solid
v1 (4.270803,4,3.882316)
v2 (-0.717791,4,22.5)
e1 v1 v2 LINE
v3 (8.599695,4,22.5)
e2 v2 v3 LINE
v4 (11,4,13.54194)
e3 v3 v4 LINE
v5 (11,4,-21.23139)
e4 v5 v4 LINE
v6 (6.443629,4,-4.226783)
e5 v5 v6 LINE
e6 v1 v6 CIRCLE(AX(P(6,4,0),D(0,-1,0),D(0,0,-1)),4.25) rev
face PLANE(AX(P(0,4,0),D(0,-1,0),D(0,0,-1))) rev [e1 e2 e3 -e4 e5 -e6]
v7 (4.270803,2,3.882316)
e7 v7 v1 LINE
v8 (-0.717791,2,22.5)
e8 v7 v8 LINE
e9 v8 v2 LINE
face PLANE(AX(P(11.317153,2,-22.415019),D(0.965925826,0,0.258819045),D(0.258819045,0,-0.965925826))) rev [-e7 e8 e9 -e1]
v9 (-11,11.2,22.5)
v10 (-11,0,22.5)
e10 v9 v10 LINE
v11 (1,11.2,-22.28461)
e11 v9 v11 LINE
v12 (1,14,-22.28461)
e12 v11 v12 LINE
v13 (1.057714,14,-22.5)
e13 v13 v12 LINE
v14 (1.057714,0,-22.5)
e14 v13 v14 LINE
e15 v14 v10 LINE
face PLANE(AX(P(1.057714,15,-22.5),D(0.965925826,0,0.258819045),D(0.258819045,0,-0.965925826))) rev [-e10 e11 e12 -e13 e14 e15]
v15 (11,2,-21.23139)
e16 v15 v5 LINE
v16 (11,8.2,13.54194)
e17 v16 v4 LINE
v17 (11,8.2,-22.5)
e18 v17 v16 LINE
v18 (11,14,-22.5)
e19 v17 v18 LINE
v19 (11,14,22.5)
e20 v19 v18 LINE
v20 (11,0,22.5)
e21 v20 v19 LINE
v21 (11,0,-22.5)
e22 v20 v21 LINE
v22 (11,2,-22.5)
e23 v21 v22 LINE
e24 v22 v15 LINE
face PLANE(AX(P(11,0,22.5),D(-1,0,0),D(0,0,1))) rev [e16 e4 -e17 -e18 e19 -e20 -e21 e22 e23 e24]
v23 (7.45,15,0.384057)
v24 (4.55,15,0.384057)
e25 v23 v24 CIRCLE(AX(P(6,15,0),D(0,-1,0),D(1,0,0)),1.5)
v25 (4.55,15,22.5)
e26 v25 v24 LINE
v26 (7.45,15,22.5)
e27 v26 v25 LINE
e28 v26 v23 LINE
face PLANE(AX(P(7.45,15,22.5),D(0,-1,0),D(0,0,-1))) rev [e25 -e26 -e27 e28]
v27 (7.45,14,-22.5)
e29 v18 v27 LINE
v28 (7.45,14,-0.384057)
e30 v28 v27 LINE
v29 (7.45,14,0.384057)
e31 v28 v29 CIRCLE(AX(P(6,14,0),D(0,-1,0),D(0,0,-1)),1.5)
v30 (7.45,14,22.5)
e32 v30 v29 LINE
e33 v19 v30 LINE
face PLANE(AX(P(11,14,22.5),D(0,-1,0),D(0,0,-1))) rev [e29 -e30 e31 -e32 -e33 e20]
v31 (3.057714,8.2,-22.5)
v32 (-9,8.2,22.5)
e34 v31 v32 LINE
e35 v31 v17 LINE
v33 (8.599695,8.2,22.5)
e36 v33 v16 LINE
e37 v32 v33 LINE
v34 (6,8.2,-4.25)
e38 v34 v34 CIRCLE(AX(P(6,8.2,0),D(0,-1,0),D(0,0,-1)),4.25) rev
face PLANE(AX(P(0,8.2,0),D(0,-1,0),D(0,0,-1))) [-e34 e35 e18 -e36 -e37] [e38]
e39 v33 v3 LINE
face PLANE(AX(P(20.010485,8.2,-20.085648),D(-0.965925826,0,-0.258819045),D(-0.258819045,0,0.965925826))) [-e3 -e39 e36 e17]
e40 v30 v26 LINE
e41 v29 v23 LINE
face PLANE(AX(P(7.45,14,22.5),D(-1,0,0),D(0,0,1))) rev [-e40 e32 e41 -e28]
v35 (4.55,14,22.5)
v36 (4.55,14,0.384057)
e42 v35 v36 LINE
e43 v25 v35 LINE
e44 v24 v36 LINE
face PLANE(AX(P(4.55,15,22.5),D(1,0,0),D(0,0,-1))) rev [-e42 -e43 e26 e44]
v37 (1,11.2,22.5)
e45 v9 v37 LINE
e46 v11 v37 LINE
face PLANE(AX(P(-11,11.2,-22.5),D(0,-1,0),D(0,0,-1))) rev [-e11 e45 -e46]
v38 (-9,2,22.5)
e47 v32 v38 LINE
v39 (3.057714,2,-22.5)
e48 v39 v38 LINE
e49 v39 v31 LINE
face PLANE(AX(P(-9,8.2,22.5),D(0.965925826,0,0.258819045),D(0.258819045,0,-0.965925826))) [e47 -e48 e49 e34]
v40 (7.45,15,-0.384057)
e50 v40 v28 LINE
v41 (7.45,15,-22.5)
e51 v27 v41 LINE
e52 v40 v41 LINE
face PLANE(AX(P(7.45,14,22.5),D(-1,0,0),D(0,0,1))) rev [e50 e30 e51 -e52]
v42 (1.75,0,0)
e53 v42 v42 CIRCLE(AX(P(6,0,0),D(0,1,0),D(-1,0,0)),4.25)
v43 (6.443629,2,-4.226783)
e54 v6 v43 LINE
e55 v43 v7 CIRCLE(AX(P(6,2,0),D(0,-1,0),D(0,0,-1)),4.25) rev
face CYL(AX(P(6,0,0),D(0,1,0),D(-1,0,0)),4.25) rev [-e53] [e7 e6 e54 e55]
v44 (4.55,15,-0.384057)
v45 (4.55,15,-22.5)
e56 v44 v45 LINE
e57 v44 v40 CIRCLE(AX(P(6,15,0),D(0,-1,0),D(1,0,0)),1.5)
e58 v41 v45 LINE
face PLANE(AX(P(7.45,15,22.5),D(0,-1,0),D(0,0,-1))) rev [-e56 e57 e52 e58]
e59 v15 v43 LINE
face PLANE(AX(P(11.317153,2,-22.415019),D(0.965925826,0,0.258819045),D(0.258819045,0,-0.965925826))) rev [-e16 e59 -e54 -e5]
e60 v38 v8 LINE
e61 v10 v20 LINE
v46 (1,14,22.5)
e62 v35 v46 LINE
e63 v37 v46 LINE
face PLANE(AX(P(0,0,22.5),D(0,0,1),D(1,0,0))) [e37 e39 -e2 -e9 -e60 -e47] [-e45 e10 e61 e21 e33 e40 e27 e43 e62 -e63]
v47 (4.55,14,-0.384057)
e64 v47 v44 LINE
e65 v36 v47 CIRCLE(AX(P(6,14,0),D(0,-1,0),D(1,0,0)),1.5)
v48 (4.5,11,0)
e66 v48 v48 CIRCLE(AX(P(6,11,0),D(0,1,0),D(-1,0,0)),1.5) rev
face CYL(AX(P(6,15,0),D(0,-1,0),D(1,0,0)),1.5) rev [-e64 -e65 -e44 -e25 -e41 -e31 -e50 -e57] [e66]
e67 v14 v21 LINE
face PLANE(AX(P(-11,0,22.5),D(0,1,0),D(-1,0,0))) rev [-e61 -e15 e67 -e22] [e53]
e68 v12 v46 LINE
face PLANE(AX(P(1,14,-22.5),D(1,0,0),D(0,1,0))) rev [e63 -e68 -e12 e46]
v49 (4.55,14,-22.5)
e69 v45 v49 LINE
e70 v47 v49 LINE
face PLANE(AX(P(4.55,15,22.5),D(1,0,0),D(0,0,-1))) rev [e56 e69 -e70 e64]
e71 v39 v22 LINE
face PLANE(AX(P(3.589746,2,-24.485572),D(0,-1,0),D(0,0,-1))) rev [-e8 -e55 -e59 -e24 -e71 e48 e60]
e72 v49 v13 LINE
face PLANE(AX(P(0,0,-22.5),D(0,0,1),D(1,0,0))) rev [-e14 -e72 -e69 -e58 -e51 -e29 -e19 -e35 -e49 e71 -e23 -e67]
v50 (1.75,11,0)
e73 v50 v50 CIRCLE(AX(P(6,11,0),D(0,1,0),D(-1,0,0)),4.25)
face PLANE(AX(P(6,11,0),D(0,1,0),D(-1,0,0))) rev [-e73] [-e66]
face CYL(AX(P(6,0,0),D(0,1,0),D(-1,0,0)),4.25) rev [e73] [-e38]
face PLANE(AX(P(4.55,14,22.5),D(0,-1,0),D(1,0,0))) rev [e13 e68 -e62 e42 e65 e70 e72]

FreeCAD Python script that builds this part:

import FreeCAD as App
import Part
import Sketcher

V = App.Vector
Q = App.Units.Quantity

doc = App.newDocument("Part")
body = doc.addObject("PartDesign::Body", "Body")

# Sketch on XY plane
sketch1 = body.newObject("Sketcher::SketchObject", "Sketch")
sketch1.AttachmentSupport = (doc.getObject("XY_Plane"), [""])
sketch1.MapMode = "FlatFace"
sketch1.addGeometry(Part.LineSegment(V(-11, 0, 0), V(11, 0, 0)), False)
sketch1.addGeometry(Part.LineSegment(V(11, 0, 0), V(11, 14, 0)), False)
sketch1.addGeometry(Part.LineSegment(V(11, 14, 0), V(7.5, 14, 0)), False)
sketch1.addGeometry(Part.LineSegment(V(7.5, 14, 0), V(7.5, 15, 0)), False)
sketch1.addGeometry(Part.LineSegment(V(7.5, 15, 0), V(4.5, 15, 0)), False)
sketch1.addGeometry(Part.LineSegment(V(4.5, 15, 0), V(4.5, 14, 0)), False)
sketch1.addGeometry(Part.LineSegment(V(4.5, 14, 0), V(-11, 14, 0)), False)
sketch1.addGeometry(Part.LineSegment(V(-11, 14, 0), V(-11, 0, 0)), False)
sketch1.addConstraint(Sketcher.Constraint("Coincident", 0, 2, 1, 1))
sketch1.addConstraint(Sketcher.Constraint("Coincident", 1, 2, 2, 1))
sketch1.addConstraint(Sketcher.Constraint("Coincident", 2, 2, 3, 1))
sketch1.addConstraint(Sketcher.Constraint("Coincident", 3, 2, 4, 1))
sketch1.addConstraint(Sketcher.Constraint("Coincident", 4, 2, 5, 1))
sketch1.addConstraint(Sketcher.Constraint("Coincident", 5, 2, 6, 1))
sketch1.addConstraint(Sketcher.Constraint("Coincident", 6, 2, 7, 1))
sketch1.addConstraint(Sketcher.Constraint("Coincident", 7, 2, 0, 1))
sketch1.addConstraint(Sketcher.Constraint("Horizontal", 0))
sketch1.addConstraint(Sketcher.Constraint("Vertical", 1))
sketch1.addConstraint(Sketcher.Constraint("Horizontal", 2))
sketch1.addConstraint(Sketcher.Constraint("Vertical", 3))
sketch1.addConstraint(Sketcher.Constraint("Horizontal", 4))
sketch1.addConstraint(Sketcher.Constraint("Vertical", 5))
sketch1.addConstraint(Sketcher.Constraint("Horizontal", 6))
sketch1.addConstraint(Sketcher.Constraint("Vertical", 7))
sketch1.addConstraint(Sketcher.Constraint("Symmetric", 0, 2, 7, 2, -1, 1))
sketch1.addConstraint(Sketcher.Constraint("Horizontal", 2, 2, 5, 2))
sketch1.addConstraint(Sketcher.Constraint("DistanceX", 0, 1, 0, 2, 22.0))
sketch1.addConstraint(Sketcher.Constraint("DistanceY", 1, 1, 1, 2, 14.0))
sketch1.addConstraint(Sketcher.Constraint("DistanceY", 3, 1, 3, 2, 1.0))
sketch1.addConstraint(Sketcher.Constraint("DistanceX", 4, 2, 4, 1, 2.9))
sketch1.addConstraint(Sketcher.Constraint("DistanceX", 2, 2, 2, 1, 3.55))
pad1 = body.newObject("PartDesign::Pad", "Pad")
pad1.Profile = sketch1
pad1.Length = 45
pad1.Midplane = True

# Sketch on XZ plane
sketch2 = body.newObject("Sketcher::SketchObject", "Sketch001")
sketch2.AttachmentSupport = (doc.getObject("XZ_Plane"), [""])
sketch2.MapMode = "FlatFace"
sketch2.addGeometry(Part.Circle(V(6, 0, 0), V(0, 0, 1), 1.5), False)
sketch2.addConstraint(Sketcher.Constraint("PointOnObject", 0, 3, -1))
sketch2.addConstraint(Sketcher.Constraint("Diameter", 0, 3.0))
sketch2.addConstraint(Sketcher.Constraint("DistanceX", -1, 1, 0, 3, 6.0))
pocket1 = body.newObject("PartDesign::Pocket", "Pocket")
pocket1.Profile = sketch2
pocket1.Type = "ThroughAll"

# Sketch on XZ plane
sketch3 = body.newObject("Sketcher::SketchObject", "Sketch002")
sketch3.AttachmentSupport = (doc.getObject("XZ_Plane"), [""])
sketch3.MapMode = "FlatFace"
sketch3.AttachmentOffset = App.Placement(V(0, 0, -11), App.Rotation())
sketch3.addGeometry(Part.Circle(V(6, 0, 0), V(0, 0, 1), 4.2), False)
sketch3.addConstraint(Sketcher.Constraint("PointOnObject", 0, 3, -1))
sketch3.addConstraint(Sketcher.Constraint("Diameter", 0, 8.5))
sketch3.addConstraint(Sketcher.Constraint("DistanceX", -1, 1, 0, 3, 6.0))
pocket2 = body.newObject("PartDesign::Pocket", "Pocket001")
pocket2.Profile = sketch3
pocket2.Type = "ThroughAll"
pocket2.Reversed = True

# Sketch on XZ plane
sketch4 = body.newObject("Sketcher::SketchObject", "Sketch003")
sketch4.AttachmentSupport = (doc.getObject("XZ_Plane"), [""])
sketch4.MapMode = "FlatFace"
sketch4.AttachmentOffset = App.Placement(V(0, 0, -4), App.Rotation())
sketch4.addGeometry(Part.LineSegment(V(-9, 22, 0), V(7, 27, 0)), False)
sketch4.addGeometry(Part.LineSegment(V(7, 27, 0), V(20, -20, 0)), False)
sketch4.addGeometry(Part.LineSegment(V(20, -20, 0), V(4, -24, 0)), False)
sketch4.addGeometry(Part.LineSegment(V(4, -24, 0), V(-9, 22, 0)), False)
sketch4.addConstraint(Sketcher.Constraint("Coincident", 0, 2, 1, 1))
sketch4.addConstraint(Sketcher.Constraint("Coincident", 1, 2, 2, 1))
sketch4.addConstraint(Sketcher.Constraint("Coincident", 2, 2, 3, 1))
sketch4.addConstraint(Sketcher.Constraint("Coincident", 3, 2, 0, 1))
sketch4.addConstraint(Sketcher.Constraint("Perpendicular", 0, 1))
sketch4.addConstraint(Sketcher.Constraint("Perpendicular", 1, 2))
sketch4.addConstraint(Sketcher.Constraint("Perpendicular", 2, 3))
sketch4.addConstraint(Sketcher.Constraint("Angle", 0, Q("15 deg")))
sketch4.addConstraint(Sketcher.Constraint("Distance", 0, 17.0))
sketch4.addConstraint(Sketcher.Constraint("DistanceX", 3, 2, -1, 1, 9.0))
sketch4.addConstraint(Sketcher.Constraint("DistanceY", -1, 1, 3, 2, 22.5))
sketch4.addConstraint(Sketcher.Constraint("DistanceY", 2, 2, -1, 1, 24.485572))
pocket3 = body.newObject("PartDesign::Pocket", "Pocket002")
pocket3.Profile = sketch4
pocket3.Length = 4.2

# Sketch on XZ plane
sketch5 = body.newObject("Sketcher::SketchObject", "Sketch004")
sketch5.AttachmentSupport = (doc.getObject("XZ_Plane"), [""])
sketch5.MapMode = "FlatFace"
sketch5.addGeometry(Part.LineSegment(V(-11, -22, 0), V(1, -22, 0)), False)
sketch5.addGeometry(Part.LineSegment(V(1, -22, 0), V(-11, 22, 0)), False)
sketch5.addGeometry(Part.LineSegment(V(-11, 22, 0), V(-11, -22, 0)), False)
sketch5.addConstraint(Sketcher.Constraint("Coincident", 0, 2, 1, 1))
sketch5.addConstraint(Sketcher.Constraint("Coincident", 1, 2, 2, 1))
sketch5.addConstraint(Sketcher.Constraint("Coincident", 2, 2, 0, 1))
sketch5.addConstraint(Sketcher.Constraint("Horizontal", 0))
sketch5.addConstraint(Sketcher.Constraint("Vertical", 2))
sketch5.addConstraint(Sketcher.Constraint("DistanceY", 2, 2, 2, 1, 45.0))
sketch5.addConstraint(Sketcher.Constraint("Angle", 1, Q("105 deg")))
sketch5.addConstraint(Sketcher.Constraint("DistanceX", 1, 2, -1, 1, 11.0))
sketch5.addConstraint(Sketcher.Constraint("DistanceY", 0, 2, -1, 1, 22.5))
pocket4 = body.newObject("PartDesign::Pocket", "Pocket003")
pocket4.Profile = sketch5
pocket4.Type = "ThroughAll"

# Sketch on XY plane
sketch6 = body.newObject("Sketcher::SketchObject", "Sketch005")
sketch6.AttachmentSupport = (doc.getObject("XY_Plane"), [""])
sketch6.MapMode = "FlatFace"
sketch6.AttachmentOffset = App.Placement(V(0, 0, 22.5), App.Rotation())
sketch6.addGeometry(Part.LineSegment(V(-11, 14, 0), V(-11, 11.2, 0)), False)
sketch6.addGeometry(Part.LineSegment(V(-11, 11.2, 0), V(1, 11.2, 0)), False)
sketch6.addGeometry(Part.LineSegment(V(1, 11.2, 0), V(1, 14, 0)), False)
sketch6.addGeometry(Part.LineSegment(V(1, 14, 0), V(-11, 14, 0)), False)
sketch6.addConstraint(Sketcher.Constraint("Coincident", 0, 2, 1, 1))
sketch6.addConstraint(Sketcher.Constraint("Coincident", 1, 2, 2, 1))
sketch6.addConstraint(Sketcher.Constraint("Coincident", 2, 2, 3, 1))
sketch6.addConstraint(Sketcher.Constraint("Coincident", 3, 2, 0, 1))
sketch6.addConstraint(Sketcher.Constraint("Vertical", 0))
sketch6.addConstraint(Sketcher.Constraint("Horizontal", 1))
sketch6.addConstraint(Sketcher.Constraint("Vertical", 2))
sketch6.addConstraint(Sketcher.Constraint("Horizontal", 3))
sketch6.addConstraint(Sketcher.Constraint("DistanceX", 1, 1, 1, 2, 12.0))
sketch6.addConstraint(Sketcher.Constraint("DistanceY", 0, 2, 0, 1, 2.8))
sketch6.addConstraint(Sketcher.Constraint("DistanceX", 0, 2, -1, 1, 11.0))
sketch6.addConstraint(Sketcher.Constraint("DistanceY", -1, 1, 2, 2, 14.0))
pocket5 = body.newObject("PartDesign::Pocket", "Pocket004")
pocket5.Profile = sketch6
pocket5.Type = "ThroughAll"

# Sketch on an angled plane
sketch7 = body.newObject("Sketcher::SketchObject", "Sketch006")
sketch7.Placement = App.Placement(V(-6.227886, 0, 23.242786), App.Rotation(V(0, -1, 0), V(0.965925826, 0, 0.258819045), V(-0.258819045, 0, 0.965925826), "ZXY"))
sketch7.addGeometry(Part.LineSegment(V(-4, 5.1, 0), V(-4, -2.9, 0)), False)
sketch7.addGeometry(Part.LineSegment(V(-4, -2.9, 0), V(-2, -2.9, 0)), False)
sketch7.addGeometry(Part.LineSegment(V(-2, -2.9, 0), V(-2, 5.1, 0)), False)
sketch7.addGeometry(Part.LineSegment(V(-2, 5.1, 0), V(-4, 5.1, 0)), False)
sketch7.addConstraint(Sketcher.Constraint("Coincident", 0, 2, 1, 1))
sketch7.addConstraint(Sketcher.Constraint("Coincident", 1, 2, 2, 1))
sketch7.addConstraint(Sketcher.Constraint("Coincident", 2, 2, 3, 1))
sketch7.addConstraint(Sketcher.Constraint("Coincident", 3, 2, 0, 1))
sketch7.addConstraint(Sketcher.Constraint("Vertical", 0))
sketch7.addConstraint(Sketcher.Constraint("Horizontal", 1))
sketch7.addConstraint(Sketcher.Constraint("Vertical", 2))
sketch7.addConstraint(Sketcher.Constraint("Horizontal", 3))
sketch7.addConstraint(Sketcher.Constraint("DistanceX", 1, 1, 1, 2, 2.0))
sketch7.addConstraint(Sketcher.Constraint("DistanceY", 0, 2, 0, 1, 8.0))
sketch7.addConstraint(Sketcher.Constraint("DistanceX", 0, 2, -1, 1, 4.0))
sketch7.addConstraint(Sketcher.Constraint("DistanceY", 0, 2, -1, 1, 2.869904))
pocket6 = body.newObject("PartDesign::Pocket", "Pocket005")
pocket6.Profile = sketch7
pocket6.Type = "ThroughAll"

doc.recompute()
